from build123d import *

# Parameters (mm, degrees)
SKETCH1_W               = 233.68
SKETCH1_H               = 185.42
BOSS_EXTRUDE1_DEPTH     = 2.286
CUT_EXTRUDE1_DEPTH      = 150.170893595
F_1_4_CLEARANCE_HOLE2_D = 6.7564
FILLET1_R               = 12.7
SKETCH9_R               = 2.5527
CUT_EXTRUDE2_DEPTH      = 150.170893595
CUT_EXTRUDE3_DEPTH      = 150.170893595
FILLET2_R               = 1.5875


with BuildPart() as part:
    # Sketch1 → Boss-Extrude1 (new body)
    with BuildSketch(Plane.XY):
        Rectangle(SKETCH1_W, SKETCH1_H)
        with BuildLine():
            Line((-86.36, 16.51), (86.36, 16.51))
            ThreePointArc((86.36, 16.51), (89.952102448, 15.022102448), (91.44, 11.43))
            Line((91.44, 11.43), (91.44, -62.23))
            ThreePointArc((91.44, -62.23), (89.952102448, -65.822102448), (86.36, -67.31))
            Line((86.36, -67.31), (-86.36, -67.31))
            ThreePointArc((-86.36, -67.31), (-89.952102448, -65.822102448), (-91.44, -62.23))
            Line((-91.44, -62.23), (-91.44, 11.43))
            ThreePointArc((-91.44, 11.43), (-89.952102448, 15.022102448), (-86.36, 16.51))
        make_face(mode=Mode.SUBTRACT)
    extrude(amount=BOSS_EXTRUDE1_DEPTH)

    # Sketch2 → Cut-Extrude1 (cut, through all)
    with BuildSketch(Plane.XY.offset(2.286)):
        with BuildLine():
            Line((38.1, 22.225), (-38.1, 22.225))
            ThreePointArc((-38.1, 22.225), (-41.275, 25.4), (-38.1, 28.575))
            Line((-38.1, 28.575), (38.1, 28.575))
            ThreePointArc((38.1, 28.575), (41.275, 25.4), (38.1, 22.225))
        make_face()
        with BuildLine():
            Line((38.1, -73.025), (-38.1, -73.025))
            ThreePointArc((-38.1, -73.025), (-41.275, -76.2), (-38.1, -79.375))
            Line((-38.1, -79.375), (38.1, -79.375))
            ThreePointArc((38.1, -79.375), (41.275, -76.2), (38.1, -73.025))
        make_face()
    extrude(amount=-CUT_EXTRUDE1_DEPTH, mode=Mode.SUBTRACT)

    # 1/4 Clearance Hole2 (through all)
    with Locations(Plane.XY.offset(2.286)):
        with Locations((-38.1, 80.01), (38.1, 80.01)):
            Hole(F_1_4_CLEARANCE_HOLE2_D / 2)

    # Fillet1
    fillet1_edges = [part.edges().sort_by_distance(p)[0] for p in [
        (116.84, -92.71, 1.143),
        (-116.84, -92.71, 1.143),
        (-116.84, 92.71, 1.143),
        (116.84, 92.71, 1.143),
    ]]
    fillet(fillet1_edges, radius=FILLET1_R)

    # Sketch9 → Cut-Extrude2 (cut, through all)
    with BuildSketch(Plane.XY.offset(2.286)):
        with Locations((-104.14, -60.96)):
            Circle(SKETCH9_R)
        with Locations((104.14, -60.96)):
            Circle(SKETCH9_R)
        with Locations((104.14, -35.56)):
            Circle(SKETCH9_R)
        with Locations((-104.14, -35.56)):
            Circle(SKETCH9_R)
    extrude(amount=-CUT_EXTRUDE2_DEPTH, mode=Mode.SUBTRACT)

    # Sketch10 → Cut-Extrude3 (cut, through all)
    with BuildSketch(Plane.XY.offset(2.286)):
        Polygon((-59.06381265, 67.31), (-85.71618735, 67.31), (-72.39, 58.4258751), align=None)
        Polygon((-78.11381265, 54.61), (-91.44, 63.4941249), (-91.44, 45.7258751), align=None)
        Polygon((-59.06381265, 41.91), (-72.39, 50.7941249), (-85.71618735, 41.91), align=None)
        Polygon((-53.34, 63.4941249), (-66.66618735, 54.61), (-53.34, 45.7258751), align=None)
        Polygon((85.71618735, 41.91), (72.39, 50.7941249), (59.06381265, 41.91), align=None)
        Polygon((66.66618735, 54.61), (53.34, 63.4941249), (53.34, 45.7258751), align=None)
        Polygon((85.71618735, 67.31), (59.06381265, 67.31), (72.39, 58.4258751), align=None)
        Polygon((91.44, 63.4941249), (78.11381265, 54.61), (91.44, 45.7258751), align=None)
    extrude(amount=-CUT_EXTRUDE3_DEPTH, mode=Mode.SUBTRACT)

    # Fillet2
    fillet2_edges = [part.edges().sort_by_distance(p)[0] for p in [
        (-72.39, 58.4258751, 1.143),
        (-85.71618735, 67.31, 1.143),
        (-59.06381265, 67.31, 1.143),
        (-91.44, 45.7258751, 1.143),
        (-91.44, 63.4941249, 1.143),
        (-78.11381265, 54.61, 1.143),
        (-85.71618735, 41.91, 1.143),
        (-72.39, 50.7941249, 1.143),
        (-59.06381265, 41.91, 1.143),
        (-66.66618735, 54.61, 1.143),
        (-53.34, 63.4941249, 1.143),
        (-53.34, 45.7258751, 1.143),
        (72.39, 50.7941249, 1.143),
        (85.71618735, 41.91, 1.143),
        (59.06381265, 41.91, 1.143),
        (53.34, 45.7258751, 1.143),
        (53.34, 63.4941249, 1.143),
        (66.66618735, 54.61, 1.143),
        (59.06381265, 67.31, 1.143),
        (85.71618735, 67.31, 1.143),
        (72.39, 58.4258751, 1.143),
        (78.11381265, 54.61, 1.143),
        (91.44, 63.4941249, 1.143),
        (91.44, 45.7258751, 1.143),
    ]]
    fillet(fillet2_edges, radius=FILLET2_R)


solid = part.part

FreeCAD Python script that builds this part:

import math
import FreeCAD as App
import Part
import Sketcher
from FreeCAD import Vector
Q = App.Units.Quantity


def edges_at(feature, points):
    """Names of the edges that pass closest to the given points."""
    edges = feature.Shape.Edges
    near = lambda p: min(range(len(edges)), key=lambda i: edges[i].distToShape(Part.Vertex(*p))[0])
    return sorted({f"Edge{near(p) + 1}" for p in points})


def add_polygon(sketch, points):
    """Adds a closed chain of lines whose ends are joined by coincident constraints."""
    first, n = sketch.GeometryCount, len(points)
    for a, b in zip(points, points[1:] + points[:1]):
        sketch.addGeometry(Part.LineSegment(App.Vector(*a, 0), App.Vector(*b, 0)), False)
    for i in range(n):
        sketch.addConstraint(Sketcher.Constraint("Coincident", first + i, 2, first + (i + 1) % n, 1))

doc = App.newDocument("Part")
body = doc.addObject("PartDesign::Body", "Body")

# Sketch on XY plane
sketch1 = doc.addObject("Sketcher::SketchObject", "Sketch")
body.addObject(sketch1)
sketch1.AttachmentSupport = (doc.XY_Plane, [""])
sketch1.MapMode = "FlatFace"
add_polygon(sketch1, [(-117, 93), (-117, -93), (117, -93), (117, 93)])  # lines 0-3
sketch1.addGeometry(Part.ArcOfCircle(Part.Circle(Vector(-86, 11, 0), Vector(0, 0, 1), 5), math.radians(90), math.radians(180)), False)  # 4
sketch1.addGeometry(Part.LineSegment(Vector(-86, 17, 0), Vector(86, 17, 0)), False)  # 5
sketch1.addGeometry(Part.ArcOfCircle(Part.Circle(Vector(86, 11, 0), Vector(0, 0, 1), 5), math.radians(0), math.radians(90)), False)  # 6
sketch1.addGeometry(Part.LineSegment(Vector(91, 11, 0), Vector(91, -62, 0)), False)  # 7
sketch1.addGeometry(Part.ArcOfCircle(Part.Circle(Vector(86, -62, 0), Vector(0, 0, 1), 5), math.radians(-90), math.radians(0)), False)  # 8
sketch1.addGeometry(Part.LineSegment(Vector(86, -67, 0), Vector(-86, -67, 0)), False)  # 9
sketch1.addGeometry(Part.ArcOfCircle(Part.Circle(Vector(-86, -62, 0), Vector(0, 0, 1), 5), math.radians(-180), math.radians(-90)), False)  # 10
sketch1.addGeometry(Part.LineSegment(Vector(-91, -62, 0), Vector(-91, 11, 0)), False)  # 11
sketch1.addConstraint(Sketcher.Constraint("Tangent", 4, 1, 5, 1))
sketch1.addConstraint(Sketcher.Constraint("Tangent", 5, 2, 6, 2))
sketch1.addConstraint(Sketcher.Constraint("Tangent", 6, 1, 7, 1))
sketch1.addConstraint(Sketcher.Constraint("Tangent", 7, 2, 8, 2))
sketch1.addConstraint(Sketcher.Constraint("Tangent", 8, 1, 9, 1))
sketch1.addConstraint(Sketcher.Constraint("Tangent", 9, 2, 10, 2))
sketch1.addConstraint(Sketcher.Constraint("Tangent", 10, 1, 11, 1))
sketch1.addConstraint(Sketcher.Constraint("Tangent", 11, 2, 4, 2))
sketch1.addConstraint(Sketcher.Constraint("Vertical", 0))
sketch1.addConstraint(Sketcher.Constraint("Horizontal", 1))
sketch1.addConstraint(Sketcher.Constraint("Vertical", 2))
sketch1.addConstraint(Sketcher.Constraint("Horizontal", 3))
sketch1.addConstraint(Sketcher.Constraint("Horizontal", 5))
sketch1.addConstraint(Sketcher.Constraint("Vertical", 7))
sketch1.addConstraint(Sketcher.Constraint("Horizontal", 9))
sketch1.addConstraint(Sketcher.Constraint("Vertical", 11))
sketch1.addConstraint(Sketcher.Constraint("Equal", 4, 6))
sketch1.addConstraint(Sketcher.Constraint("Equal", 6, 8))
sketch1.addConstraint(Sketcher.Constraint("Equal", 8, 10))
sketch1.addConstraint(Sketcher.Constraint("Symmetric", 0, 2, 2, 2, -1, 1))
sketch1.addConstraint(Sketcher.Constraint("Radius", 4, Q("0.2 in")))
sketch1.addConstraint(Sketcher.Constraint("DistanceX", 1, 1, 1, 2, Q("9.2 in")))
sketch1.addConstraint(Sketcher.Constraint("DistanceX", 5, 1, 5, 2, Q("6.8 in")))
sketch1.addConstraint(Sketcher.Constraint("DistanceY", 0, 2, 0, 1, Q("7.3 in")))
sketch1.addConstraint(Sketcher.Constraint("DistanceY", 7, 2, 7, 1, Q("2.9 in")))
sketch1.addConstraint(Sketcher.Constraint("DistanceX", 0, 2, 8, 3, Q("8 in")))
sketch1.addConstraint(Sketcher.Constraint("DistanceY", 4, 1, 3, 2, Q("3 in")))
pad1 = doc.addObject("PartDesign::Pad", "Pad")
body.addObject(pad1)
pad1.Profile = sketch1
pad1.Length = Q("0.09 in")

# Sketch on XY plane
sketch2 = doc.addObject("Sketcher::SketchObject", "Sketch001")
body.addObject(sketch2)
sketch2.AttachmentSupport = (doc.XY_Plane, [""])
sketch2.MapMode = "FlatFace"
sketch2.AttachmentOffset = App.Placement(Vector(0, 0, 0.09 * 25.4), App.Rotation())
sketch2.addGeometry(Part.LineSegment(Vector(-38.1, 22.2, 0), Vector(38.1, 22.2, 0)), False)
sketch2.addGeometry(Part.ArcOfCircle(Part.Circle(Vector(38.1, 25.4, 0), Vector(0, 0, 1), 3.2), math.radians(-90), math.radians(90)), False)
sketch2.addGeometry(Part.LineSegment(Vector(38.1, 28.6, 0), Vector(-38.1, 28.6, 0)), False)
sketch2.addGeometry(Part.ArcOfCircle(Part.Circle(Vector(-38.1, 25.4, 0), Vector(0, 0, 1), 3.2), math.radians(90), math.radians(270)), False)
sketch2.addGeometry(Part.LineSegment(Vector(38.1, -73, 0), Vector(-38.1, -73, 0)), False)
sketch2.addGeometry(Part.ArcOfCircle(Part.Circle(Vector(-38.1, -76.2, 0), Vector(0, 0, 1), 3.2), math.radians(90), math.radians(270)), False)
sketch2.addGeometry(Part.LineSegment(Vector(-38.1, -79.4, 0), Vector(38.1, -79.4, 0)), False)
sketch2.addGeometry(Part.ArcOfCircle(Part.Circle(Vector(38.1, -76.2, 0), Vector(0, 0, 1), 3.2), math.radians(-90), math.radians(90)), False)
sketch2.addConstraint(Sketcher.Constraint("Tangent", 0, 2, 1, 1))
sketch2.addConstraint(Sketcher.Constraint("Tangent", 1, 2, 2, 1))
sketch2.addConstraint(Sketcher.Constraint("Tangent", 2, 2, 3, 1))
sketch2.addConstraint(Sketcher.Constraint("Tangent", 3, 2, 0, 1))
sketch2.addConstraint(Sketcher.Constraint("Tangent", 4, 2, 5, 1))
sketch2.addConstraint(Sketcher.Constraint("Tangent", 5, 2, 6, 1))
sketch2.addConstraint(Sketcher.Constraint("Tangent", 6, 2, 7, 1))
sketch2.addConstraint(Sketcher.Constraint("Tangent", 7, 2, 4, 1))
sketch2.addConstraint(Sketcher.Constraint("Horizontal", 0))
sketch2.addConstraint(Sketcher.Constraint("Horizontal", 2))
sketch2.addConstraint(Sketcher.Constraint("Horizontal", 4))
sketch2.addConstraint(Sketcher.Constraint("Horizontal", 6))
sketch2.addConstraint(Sketcher.Constraint("Equal", 3, 5))
sketch2.addConstraint(Sketcher.Constraint("Vertical", 3, 3, 5, 3))
sketch2.addConstraint(Sketcher.Constraint("Vertical", 1, 3, 7, 3))
sketch2.addConstraint(Sketcher.Constraint("DistanceX", 0, 1, 0, 2, Q("3 in")))
sketch2.addConstraint(Sketcher.Constraint("DistanceY", -1, 1, 1, 3, Q("1 in")))
sketch2.addConstraint(Sketcher.Constraint("DistanceY", 5, 3, -1, 1, Q("3 in")))
sketch2.addConstraint(Sketcher.Constraint("Radius", 1, Q("0.125 in")))
sketch2.addConstraint(Sketcher.Constraint("DistanceX", -1, 1, 1, 3, Q("1.5 in")))
pocket1 = doc.addObject("PartDesign::Pocket", "Pocket")
body.addObject(pocket1)
pocket1.Profile = sketch2
pocket1.Type = "ThroughAll"

# Sketch on XY plane
sketch3 = doc.addObject("Sketcher::SketchObject", "Sketch002")
body.addObject(sketch3)
sketch3.AttachmentSupport = (doc.XY_Plane, [""])
sketch3.MapMode = "FlatFace"
sketch3.AttachmentOffset = App.Placement(Vector(0, 0, 0.09 * 25.4), App.Rotation())
sketch3.addGeometry(Part.Circle(Vector(-38.1, 80, 0), Vector(0, 0, 1), 3.4), False)
sketch3.addGeometry(Part.Circle(Vector(38.1, 80, 0), Vector(0, 0, 1), 3.4), False)
sketch3.addConstraint(Sketcher.Constraint("Equal", 0, 1))
sketch3.addConstraint(Sketcher.Constraint("Symmetric", 0, 3, 1, 3, -2))
sketch3.addConstraint(Sketcher.Constraint("Diameter", 0, Q("0.266 in")))
sketch3.addConstraint(Sketcher.Constraint("DistanceX", 0, 3, 1, 3, Q("3 in")))
sketch3.addConstraint(Sketcher.Constraint("DistanceY", -1, 1, 0, 3, Q("3.15 in")))
doc.recompute()
hole = doc.addObject("PartDesign::Hole", "Hole")
body.addObject(hole)
hole.Profile = sketch3
hole.ThreadType = "None"
hole.Diameter = Q("0.266 in")
hole.DepthType = "ThroughAll"
doc.recompute()

fillet = doc.addObject("PartDesign::Fillet", "Fillet")
body.addObject(fillet)
fillet.Base = (hole, edges_at(hole, [
    (116.84, -92.71, 1.143),
    (-116.84, -92.71, 1.143),
    (-116.84, 92.71, 1.143),
    (116.84, 92.71, 1.143),
]))
fillet.Radius = Q("0.5 in")

# Sketch on XY plane
sketch4 = doc.addObject("Sketcher::SketchObject", "Sketch003")
body.addObject(sketch4)
sketch4.AttachmentSupport = (doc.XY_Plane, [""])
sketch4.MapMode = "FlatFace"
sketch4.AttachmentOffset = App.Placement(Vector(0, 0, 0.09 * 25.4), App.Rotation())
sketch4.addGeometry(Part.Circle(Vector(-104.1, -61, 0), Vector(0, 0, 1), 2.6), False)
sketch4.addGeometry(Part.Circle(Vector(104.1, -61, 0), Vector(0, 0, 1), 2.6), False)
sketch4.addGeometry(Part.Circle(Vector(104.1, -35.6, 0), Vector(0, 0, 1), 2.6), False)
sketch4.addGeometry(Part.Circle(Vector(-104.1, -35.6, 0), Vector(0, 0, 1), 2.6), False)
sketch4.addConstraint(Sketcher.Constraint("Equal", 0, 1))
sketch4.addConstraint(Sketcher.Constraint("Equal", 1, 2))
sketch4.addConstraint(Sketcher.Constraint("Equal", 2, 3))
sketch4.addConstraint(Sketcher.Constraint("Symmetric", 0, 3, 1, 3, -2))
sketch4.addConstraint(Sketcher.Constraint("Symmetric", 2, 3, 3, 3, -2))
sketch4.addConstraint(Sketcher.Constraint("Vertical", 1, 3, 2, 3))
sketch4.addConstraint(Sketcher.Constraint("Diameter", 0, Q("0.201 in")))
sketch4.addConstraint(Sketcher.Constraint("DistanceY", 1, 3, 2, 3, Q("1 in")))
sketch4.addConstraint(Sketcher.Constraint("DistanceX", 0, 3, -1, 1, Q("4.1 in")))
sketch4.addConstraint(Sketcher.Constraint("DistanceY", 0, 3, -1, 1, Q("2.4 in")))
pocket2 = doc.addObject("PartDesign::Pocket", "Pocket001")
body.addObject(pocket2)
pocket2.Profile = sketch4
pocket2.Type = "ThroughAll"

# Sketch on XY plane
sketch5 = doc.addObject("Sketcher::SketchObject", "Sketch004")
body.addObject(sketch5)
sketch5.AttachmentSupport = (doc.XY_Plane, [""])
sketch5.MapMode = "FlatFace"
sketch5.AttachmentOffset = App.Placement(Vector(0, 0, 0.09 * 25.4), App.Rotation())
add_polygon(sketch5, [(-59, 67), (-86, 67), (-72, 58)])  # lines 0-2
add_polygon(sketch5, [(-78, 55), (-91, 63), (-91, 46)])  # lines 3-5
add_polygon(sketch5, [(-59, 42), (-72, 51), (-86, 42)])  # lines 6-8
add_polygon(sketch5, [(-53, 63), (-67, 55), (-53, 46)])  # lines 9-11
add_polygon(sketch5, [(86, 42), (72, 51), (59, 42)])  # lines 12-14
add_polygon(sketch5, [(67, 55), (53, 63), (53, 46)])  # lines 15-17
add_polygon(sketch5, [(86, 67), (59, 67), (72, 58)])  # lines 18-20
add_polygon(sketch5, [(91, 63), (78, 55), (91, 46)])  # lines 21-23
sketch5.addConstraint(Sketcher.Constraint("Horizontal", 0))
sketch5.addConstraint(Sketcher.Constraint("Vertical", 4))
sketch5.addConstraint(Sketcher.Constraint("Horizontal", 8))
sketch5.addConstraint(Sketcher.Constraint("Vertical", 11))
sketch5.addConstraint(Sketcher.Constraint("Horizontal", 14))
sketch5.addConstraint(Sketcher.Constraint("Vertical", 16))
sketch5.addConstraint(Sketcher.Constraint("Horizontal", 18))
sketch5.addConstraint(Sketcher.Constraint("Vertical", 23))
sketch5.addConstraint(Sketcher.Constraint("Symmetric", 6, 2, 12, 2, -2))
sketch5.addConstraint(Sketcher.Constraint("Symmetric", 8, 2, 13, 2, -2))
sketch5.addConstraint(Sketcher.Constraint("Symmetric", 11, 2, 15, 2, -2))
sketch5.addConstraint(Sketcher.Constraint("Symmetric", 9, 2, 17, 2, -2))
sketch5.addConstraint(Sketcher.Constraint("Symmetric", 2, 2, 18, 2, -2))
sketch5.addConstraint(Sketcher.Constraint("Symmetric", 1, 2, 19, 2, -2))
sketch5.addConstraint(Sketcher.Constraint("Symmetric", 5, 2, 21, 2, -2))
sketch5.addConstraint(Sketcher.Constraint("Symmetric", 4, 2, 22, 2, -2))
sketch5.addConstraint(Sketcher.Constraint("Parallel", 1, 3))
sketch5.addConstraint(Sketcher.Constraint("Parallel", 2, 5))
sketch5.addConstraint(Sketcher.Constraint("Parallel", 3, 6))
sketch5.addConstraint(Sketcher.Constraint("Parallel", 5, 7))
sketch5.addConstraint(Sketcher.Constraint("Parallel", 7, 9))
sketch5.addConstraint(Sketcher.Constraint("Parallel", 6, 10))
sketch5.addConstraint(Sketcher.Constraint("Parallel", 10, 12))
sketch5.addConstraint(Sketcher.Constraint("Parallel", 9, 13))
sketch5.addConstraint(Sketcher.Constraint("Parallel", 13, 17))
sketch5.addConstraint(Sketcher.Constraint("Parallel", 17, 20))
sketch5.addConstraint(Sketcher.Constraint("Parallel", 20, 21))
sketch5.addConstraint(Sketcher.Constraint("Horizontal", 5, 2, 9, 2))
sketch5.addConstraint(Sketcher.Constraint("Horizontal", 4, 2, 10, 2))
sketch5.addConstraint(Sketcher.Constraint("Vertical", 1, 2, 6, 2))
sketch5.addConstraint(Sketcher.Constraint("Vertical", 0, 2, 7, 2))
sketch5.addConstraint(Sketcher.Constraint("Equal", 2, 3))
sketch5.addConstraint(Sketcher.Constraint("DistanceY", 8, 2, 2, 2, Q("1 in")))
sketch5.addConstraint(Sketcher.Constraint("DistanceX", 3, 2, -1, 1, Q("3.6 in")))
sketch5.addConstraint(Sketcher.Constraint("DistanceX", 10, 2, -1, 1, Q("2.1 in")))
sketch5.addConstraint(Sketcher.Constraint("DistanceY", 4, 2, 1, 2, Q("0.5 in")))
sketch5.addConstraint(Sketcher.Constraint("DistanceX", 8, 2, 14, 2, Q("5.7 in")))
sketch5.addConstraint(Sketcher.Constraint("DistanceY", -1, 1, 0, 2, Q("2.65 in")))
sketch5.addConstraint(Sketcher.Constraint("DistanceY", 4, 2, 4, 1, 17.76825))
sketch5.addConstraint(Sketcher.Constraint("DistanceX", 0, 2, 0, 1, 26.652375))
pocket3 = doc.addObject("PartDesign::Pocket", "Pocket002")
body.addObject(pocket3)
pocket3.Profile = sketch5
pocket3.Type = "ThroughAll"
doc.recompute()

fillet2 = doc.addObject("PartDesign::Fillet", "Fillet001")
body.addObject(fillet2)
fillet2.Base = (pocket3, edges_at(pocket3, [
    (-72.39, 58.426, 1.143),
    (-85.716, 67.31, 1.143),
    (-59.064, 67.31, 1.143),
    (-91.44, 45.726, 1.143),
    (-91.44, 63.494, 1.143),
    (-78.114, 54.61, 1.143),
    (-85.716, 41.91, 1.143),
    (-72.39, 50.794, 1.143),
    (-59.064, 41.91, 1.143),
    (-66.666, 54.61, 1.143),
    (-53.34, 63.494, 1.143),
    (-53.34, 45.726, 1.143),
    (72.39, 50.794, 1.143),
    (85.716, 41.91, 1.143),
    (59.064, 41.91, 1.143),
    (53.34, 45.726, 1.143),
    (53.34, 63.494, 1.143),
    (66.666, 54.61, 1.143),
    (59.064, 67.31, 1.143),
    (85.716, 67.31, 1.143),
    (72.39, 58.426, 1.143),
    (78.114, 54.61, 1.143),
    (91.44, 63.494, 1.143),
    (91.44, 45.726, 1.143),
]))
fillet2.Radius = Q("0.0625 in")

doc.recompute()
